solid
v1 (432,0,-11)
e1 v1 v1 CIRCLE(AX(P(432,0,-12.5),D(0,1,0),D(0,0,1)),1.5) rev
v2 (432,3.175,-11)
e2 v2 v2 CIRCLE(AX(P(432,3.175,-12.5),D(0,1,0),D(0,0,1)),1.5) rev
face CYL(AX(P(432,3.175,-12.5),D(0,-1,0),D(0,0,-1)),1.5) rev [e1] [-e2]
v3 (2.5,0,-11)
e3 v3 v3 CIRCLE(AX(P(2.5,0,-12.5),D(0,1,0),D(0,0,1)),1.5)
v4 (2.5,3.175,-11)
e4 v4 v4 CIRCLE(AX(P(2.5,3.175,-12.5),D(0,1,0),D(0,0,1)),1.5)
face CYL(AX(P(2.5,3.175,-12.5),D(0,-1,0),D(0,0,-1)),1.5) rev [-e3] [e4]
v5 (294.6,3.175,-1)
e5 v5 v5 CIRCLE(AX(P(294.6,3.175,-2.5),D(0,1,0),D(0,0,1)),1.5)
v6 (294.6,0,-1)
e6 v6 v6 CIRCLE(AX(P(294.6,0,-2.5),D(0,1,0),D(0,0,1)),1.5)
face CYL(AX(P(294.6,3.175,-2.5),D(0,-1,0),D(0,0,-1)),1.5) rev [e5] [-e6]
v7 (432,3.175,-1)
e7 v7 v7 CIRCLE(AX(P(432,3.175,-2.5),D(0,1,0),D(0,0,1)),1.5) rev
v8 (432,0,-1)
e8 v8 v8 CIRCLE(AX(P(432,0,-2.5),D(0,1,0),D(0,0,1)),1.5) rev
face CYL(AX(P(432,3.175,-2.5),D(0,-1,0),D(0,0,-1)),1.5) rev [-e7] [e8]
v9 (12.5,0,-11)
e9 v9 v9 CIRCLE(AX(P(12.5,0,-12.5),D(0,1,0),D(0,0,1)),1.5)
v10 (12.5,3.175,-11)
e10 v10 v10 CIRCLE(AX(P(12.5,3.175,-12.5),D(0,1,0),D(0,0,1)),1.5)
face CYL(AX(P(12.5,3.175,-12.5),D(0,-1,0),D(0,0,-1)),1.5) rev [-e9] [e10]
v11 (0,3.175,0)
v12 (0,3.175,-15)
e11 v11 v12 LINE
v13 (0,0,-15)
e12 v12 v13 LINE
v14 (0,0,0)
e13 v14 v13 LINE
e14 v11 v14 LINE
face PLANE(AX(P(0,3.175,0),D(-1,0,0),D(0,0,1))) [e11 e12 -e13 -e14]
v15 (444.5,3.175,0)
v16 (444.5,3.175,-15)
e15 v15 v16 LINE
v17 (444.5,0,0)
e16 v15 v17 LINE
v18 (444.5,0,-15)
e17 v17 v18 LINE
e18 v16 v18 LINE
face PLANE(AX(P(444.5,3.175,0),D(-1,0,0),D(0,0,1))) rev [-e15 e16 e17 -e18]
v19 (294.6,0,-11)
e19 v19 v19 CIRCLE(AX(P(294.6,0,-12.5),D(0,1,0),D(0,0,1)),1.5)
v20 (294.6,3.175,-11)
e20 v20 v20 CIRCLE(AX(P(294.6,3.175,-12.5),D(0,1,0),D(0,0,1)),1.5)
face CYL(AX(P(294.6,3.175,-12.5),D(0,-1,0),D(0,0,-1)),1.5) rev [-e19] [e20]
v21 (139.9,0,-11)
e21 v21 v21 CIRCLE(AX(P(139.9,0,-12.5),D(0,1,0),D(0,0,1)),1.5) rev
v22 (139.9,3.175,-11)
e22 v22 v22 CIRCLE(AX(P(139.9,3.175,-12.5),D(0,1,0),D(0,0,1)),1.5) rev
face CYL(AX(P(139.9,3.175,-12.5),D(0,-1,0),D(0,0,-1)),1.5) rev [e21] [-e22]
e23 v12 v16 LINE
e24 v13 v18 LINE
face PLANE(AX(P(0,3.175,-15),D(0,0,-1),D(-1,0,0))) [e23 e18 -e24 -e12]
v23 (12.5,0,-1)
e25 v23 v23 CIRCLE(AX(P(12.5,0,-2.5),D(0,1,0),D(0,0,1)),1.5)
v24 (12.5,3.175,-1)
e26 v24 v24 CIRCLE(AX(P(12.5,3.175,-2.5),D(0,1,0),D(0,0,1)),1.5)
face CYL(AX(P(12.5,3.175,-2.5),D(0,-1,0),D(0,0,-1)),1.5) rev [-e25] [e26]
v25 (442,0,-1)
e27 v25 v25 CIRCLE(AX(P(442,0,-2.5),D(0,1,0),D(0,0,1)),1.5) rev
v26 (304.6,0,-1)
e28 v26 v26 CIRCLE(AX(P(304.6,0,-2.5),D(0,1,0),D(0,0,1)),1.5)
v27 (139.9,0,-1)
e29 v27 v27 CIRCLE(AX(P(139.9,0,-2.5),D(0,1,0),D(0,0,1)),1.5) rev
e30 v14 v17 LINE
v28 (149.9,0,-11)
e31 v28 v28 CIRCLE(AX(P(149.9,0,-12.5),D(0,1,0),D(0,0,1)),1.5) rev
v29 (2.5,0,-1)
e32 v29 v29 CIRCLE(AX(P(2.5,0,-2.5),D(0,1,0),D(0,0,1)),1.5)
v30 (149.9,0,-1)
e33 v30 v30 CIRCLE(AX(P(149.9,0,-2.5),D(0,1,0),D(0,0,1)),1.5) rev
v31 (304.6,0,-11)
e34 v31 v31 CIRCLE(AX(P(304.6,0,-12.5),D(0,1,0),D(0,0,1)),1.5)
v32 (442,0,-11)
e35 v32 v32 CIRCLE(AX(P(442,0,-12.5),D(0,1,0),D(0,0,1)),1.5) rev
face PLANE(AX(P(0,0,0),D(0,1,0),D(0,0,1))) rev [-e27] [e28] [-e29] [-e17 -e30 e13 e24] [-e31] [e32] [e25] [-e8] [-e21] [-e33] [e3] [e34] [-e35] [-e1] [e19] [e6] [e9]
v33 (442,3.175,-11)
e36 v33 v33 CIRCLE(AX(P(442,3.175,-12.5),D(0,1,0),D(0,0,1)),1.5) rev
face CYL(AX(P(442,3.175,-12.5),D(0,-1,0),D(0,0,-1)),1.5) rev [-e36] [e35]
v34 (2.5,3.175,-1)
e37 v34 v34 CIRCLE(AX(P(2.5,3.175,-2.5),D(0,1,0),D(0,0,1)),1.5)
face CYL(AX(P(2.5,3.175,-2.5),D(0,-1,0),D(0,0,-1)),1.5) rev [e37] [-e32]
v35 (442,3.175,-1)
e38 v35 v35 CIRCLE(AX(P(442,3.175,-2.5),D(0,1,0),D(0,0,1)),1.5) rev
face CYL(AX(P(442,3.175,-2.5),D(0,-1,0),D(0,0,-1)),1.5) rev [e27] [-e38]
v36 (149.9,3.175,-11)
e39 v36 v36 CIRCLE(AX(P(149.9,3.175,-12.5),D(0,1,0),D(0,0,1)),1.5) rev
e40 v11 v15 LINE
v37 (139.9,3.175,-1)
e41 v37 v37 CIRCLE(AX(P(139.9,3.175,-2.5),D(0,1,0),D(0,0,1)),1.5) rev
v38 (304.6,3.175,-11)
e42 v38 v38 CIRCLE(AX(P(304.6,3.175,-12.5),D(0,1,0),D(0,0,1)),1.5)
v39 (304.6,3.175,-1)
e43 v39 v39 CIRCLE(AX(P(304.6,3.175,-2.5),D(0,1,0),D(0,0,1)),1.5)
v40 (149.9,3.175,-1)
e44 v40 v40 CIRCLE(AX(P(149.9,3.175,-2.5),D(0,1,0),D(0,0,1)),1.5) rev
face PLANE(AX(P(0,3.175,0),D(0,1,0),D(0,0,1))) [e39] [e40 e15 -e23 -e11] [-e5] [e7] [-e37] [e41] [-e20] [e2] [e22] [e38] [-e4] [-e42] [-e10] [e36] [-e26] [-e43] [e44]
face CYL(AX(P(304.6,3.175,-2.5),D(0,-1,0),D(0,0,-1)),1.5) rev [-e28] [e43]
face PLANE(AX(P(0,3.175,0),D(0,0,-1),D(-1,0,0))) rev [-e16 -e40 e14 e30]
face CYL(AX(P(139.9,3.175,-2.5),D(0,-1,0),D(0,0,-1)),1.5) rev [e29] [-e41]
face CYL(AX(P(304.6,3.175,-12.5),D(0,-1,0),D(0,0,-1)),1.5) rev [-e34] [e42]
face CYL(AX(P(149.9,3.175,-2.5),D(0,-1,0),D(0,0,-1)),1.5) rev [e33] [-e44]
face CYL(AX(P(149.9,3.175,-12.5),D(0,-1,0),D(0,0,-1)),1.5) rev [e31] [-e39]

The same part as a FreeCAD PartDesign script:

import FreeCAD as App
import Part
import Sketcher

V = App.Vector
Q = App.Units.Quantity

doc = App.newDocument("Part")
params = doc.addObject("Spreadsheet::Sheet", "Params")
for row, (alias, value) in enumerate([
    ("sketch1_diameter", "3 mm"),
    ("sketch1_height", "15 mm"),
    ("sketch1_width", "444.5 mm"),
    ("pad1_length", "3.175 mm"),
], start=1):
    params.set(f"A{row}", alias)
    params.set(f"B{row}", "=" + value)
    params.setAlias(f"B{row}", alias)

body = doc.addObject("PartDesign::Body", "Body")

# Sketch on XZ plane
sketch1 = body.newObject("Sketcher::SketchObject", "Sketch")
sketch1.AttachmentSupport = (doc.getObject("XZ_Plane"), [""])
sketch1.MapMode = "FlatFace"
sketch1.addGeometry(Part.LineSegment(V(0, 0, 0), V(444.5, 0, 0)), False)
sketch1.addGeometry(Part.LineSegment(V(444.5, 0, 0), V(444.5, -15, 0)), False)
sketch1.addGeometry(Part.LineSegment(V(444.5, -15, 0), V(0, -15, 0)), False)
sketch1.addGeometry(Part.LineSegment(V(0, -15, 0), V(0, 0, 0)), False)
sketch1.addGeometry(Part.Circle(V(2.5, -2.5, 0), V(0, 0, 1), 1.5), False)
sketch1.addGeometry(Part.Circle(V(12.5, -2.5, 0), V(0, 0, 1), 1.5), False)
sketch1.addGeometry(Part.Circle(V(139.9, -2.5, 0), V(0, 0, 1), 1.5), False)
sketch1.addGeometry(Part.Circle(V(149.9, -2.5, 0), V(0, 0, 1), 1.5), False)
sketch1.addGeometry(Part.Circle(V(294.6, -2.5, 0), V(0, 0, 1), 1.5), False)
sketch1.addGeometry(Part.Circle(V(304.6, -2.5, 0), V(0, 0, 1), 1.5), False)
sketch1.addGeometry(Part.Circle(V(432, -2.5, 0), V(0, 0, 1), 1.5), False)
sketch1.addGeometry(Part.Circle(V(442, -2.5, 0), V(0, 0, 1), 1.5), False)
sketch1.addGeometry(Part.Circle(V(2.5, -12.5, 0), V(0, 0, 1), 1.5), False)
sketch1.addGeometry(Part.Circle(V(12.5, -12.5, 0), V(0, 0, 1), 1.5), False)
sketch1.addGeometry(Part.Circle(V(139.9, -12.5, 0), V(0, 0, 1), 1.5), False)
sketch1.addGeometry(Part.Circle(V(149.9, -12.5, 0), V(0, 0, 1), 1.5), False)
sketch1.addGeometry(Part.Circle(V(294.6, -12.5, 0), V(0, 0, 1), 1.5), False)
sketch1.addGeometry(Part.Circle(V(304.6, -12.5, 0), V(0, 0, 1), 1.5), False)
sketch1.addGeometry(Part.Circle(V(432, -12.5, 0), V(0, 0, 1), 1.5), False)
sketch1.addGeometry(Part.Circle(V(442, -12.5, 0), V(0, 0, 1), 1.5), False)
sketch1.addConstraint(Sketcher.Constraint("Coincident", 0, 2, 1, 1))
sketch1.addConstraint(Sketcher.Constraint("Coincident", 1, 2, 2, 1))
sketch1.addConstraint(Sketcher.Constraint("Coincident", 2, 2, 3, 1))
sketch1.addConstraint(Sketcher.Constraint("Coincident", 3, 2, 0, 1))
sketch1.addConstraint(Sketcher.Constraint("Horizontal", 0))
sketch1.addConstraint(Sketcher.Constraint("Vertical", 1))
sketch1.addConstraint(Sketcher.Constraint("Horizontal", 2))
sketch1.addConstraint(Sketcher.Constraint("Vertical", 3))
sketch1.addConstraint(Sketcher.Constraint("Coincident", 3, 2, -1, 1))
sketch1.addConstraint(Sketcher.Constraint("Equal", 4, 5))
sketch1.addConstraint(Sketcher.Constraint("Equal", 5, 6))
sketch1.addConstraint(Sketcher.Constraint("Equal", 6, 7))
sketch1.addConstraint(Sketcher.Constraint("Equal", 7, 8))
sketch1.addConstraint(Sketcher.Constraint("Equal", 8, 9))
sketch1.addConstraint(Sketcher.Constraint("Equal", 9, 10))
sketch1.addConstraint(Sketcher.Constraint("Equal", 10, 11))
sketch1.addConstraint(Sketcher.Constraint("Equal", 11, 12))
sketch1.addConstraint(Sketcher.Constraint("Equal", 12, 13))
sketch1.addConstraint(Sketcher.Constraint("Equal", 13, 14))
sketch1.addConstraint(Sketcher.Constraint("Equal", 14, 15))
sketch1.addConstraint(Sketcher.Constraint("Equal", 15, 16))
sketch1.addConstraint(Sketcher.Constraint("Equal", 16, 17))
sketch1.addConstraint(Sketcher.Constraint("Equal", 17, 18))
sketch1.addConstraint(Sketcher.Constraint("Equal", 18, 19))
sketch1.addConstraint(Sketcher.Constraint("Horizontal", 4, 3, 5, 3))
sketch1.addConstraint(Sketcher.Constraint("Horizontal", 5, 3, 6, 3))
sketch1.addConstraint(Sketcher.Constraint("Horizontal", 6, 3, 7, 3))
sketch1.addConstraint(Sketcher.Constraint("Horizontal", 7, 3, 8, 3))
sketch1.addConstraint(Sketcher.Constraint("Horizontal", 8, 3, 9, 3))
sketch1.addConstraint(Sketcher.Constraint("Horizontal", 9, 3, 10, 3))
sketch1.addConstraint(Sketcher.Constraint("Horizontal", 10, 3, 11, 3))
sketch1.addConstraint(Sketcher.Constraint("Horizontal", 12, 3, 13, 3))
sketch1.addConstraint(Sketcher.Constraint("Horizontal", 13, 3, 14, 3))
sketch1.addConstraint(Sketcher.Constraint("Horizontal", 14, 3, 15, 3))
sketch1.addConstraint(Sketcher.Constraint("Horizontal", 15, 3, 16, 3))
sketch1.addConstraint(Sketcher.Constraint("Horizontal", 16, 3, 17, 3))
sketch1.addConstraint(Sketcher.Constraint("Horizontal", 17, 3, 18, 3))
sketch1.addConstraint(Sketcher.Constraint("Horizontal", 18, 3, 19, 3))
sketch1.addConstraint(Sketcher.Constraint("Vertical", 4, 3, 12, 3))
sketch1.addConstraint(Sketcher.Constraint("Vertical", 5, 3, 13, 3))
sketch1.addConstraint(Sketcher.Constraint("Vertical", 6, 3, 14, 3))
sketch1.addConstraint(Sketcher.Constraint("Vertical", 7, 3, 15, 3))
sketch1.addConstraint(Sketcher.Constraint("Vertical", 8, 3, 16, 3))
sketch1.addConstraint(Sketcher.Constraint("Vertical", 9, 3, 17, 3))
sketch1.addConstraint(Sketcher.Constraint("Vertical", 10, 3, 18, 3))
sketch1.addConstraint(Sketcher.Constraint("Vertical", 11, 3, 19, 3))
sketch1.addConstraint(Sketcher.Constraint("Diameter", 4, Q("3 mm")))
sketch1.addConstraint(Sketcher.Constraint("DistanceY", 1, 2, 1, 1, Q("15 mm")))
sketch1.addConstraint(Sketcher.Constraint("DistanceX", 0, 1, 0, 2, Q("444.5 mm")))
sketch1.addConstraint(Sketcher.Constraint("DistanceX", -1, 1, 10, 3, Q("432 mm")))
sketch1.addConstraint(Sketcher.Constraint("DistanceX", -1, 1, 11, 3, Q("442 mm")))
sketch1.addConstraint(Sketcher.Constraint("DistanceX", 4, 3, 5, 3, Q("10 mm")))
sketch1.addConstraint(Sketcher.Constraint("DistanceX", 6, 3, 7, 3, Q("10 mm")))
sketch1.addConstraint(Sketcher.Constraint("DistanceX", 8, 3, 9, 3, Q("10 mm")))
sketch1.addConstraint(Sketcher.Constraint("DistanceY", 12, 3, 4, 3, Q("10 mm")))
sketch1.addConstraint(Sketcher.Constraint("DistanceX", -1, 1, 4, 3, Q("2.5 mm")))
sketch1.addConstraint(Sketcher.Constraint("DistanceY", 4, 3, -1, 1, Q("2.5 mm")))
sketch1.addConstraint(Sketcher.Constraint("DistanceX", -1, 1, 6, 3, Q("139.9 mm")))
sketch1.addConstraint(Sketcher.Constraint("DistanceX", -1, 1, 8, 3, Q("294.6 mm")))
sketch1.setExpression("Constraints[46]", "Params.sketch1_diameter")
sketch1.setExpression("Constraints[47]", "Params.sketch1_height")
sketch1.setExpression("Constraints[48]", "Params.sketch1_width")
pad1 = body.newObject("PartDesign::Pad", "Pad")
pad1.Profile = sketch1
pad1.setExpression("Length", "Params.pad1_length")
pad1.Reversed = True

doc.recompute()
